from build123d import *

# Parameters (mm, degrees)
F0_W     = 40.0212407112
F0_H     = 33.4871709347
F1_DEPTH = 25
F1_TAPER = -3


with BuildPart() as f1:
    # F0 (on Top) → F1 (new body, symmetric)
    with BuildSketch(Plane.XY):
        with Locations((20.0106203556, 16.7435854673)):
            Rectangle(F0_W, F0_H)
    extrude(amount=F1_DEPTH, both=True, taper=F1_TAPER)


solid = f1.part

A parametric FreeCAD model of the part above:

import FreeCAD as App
import Part
import Sketcher
from FreeCAD import Vector
Q = App.Units.Quantity

doc = App.newDocument("Part")
body = doc.addObject("PartDesign::Body", "Body")

sketch1 = body.newObject("Sketcher::SketchObject", "Sketch")
sketch1.AttachmentSupport = (doc.getObject("XY_Plane"), [""])
sketch1.MapMode = "FlatFace"
sketch1.addGeometry([
    Part.LineSegment(Vector(0, 33, 0), Vector(0, 0, 0)),
    Part.LineSegment(Vector(0, 0, 0), Vector(40, 0, 0)),
    Part.LineSegment(Vector(40, 0, 0), Vector(40, 33, 0)),
    Part.LineSegment(Vector(40, 33, 0), Vector(0, 33, 0)),
], False)
sketch1.addConstraint([
    Sketcher.Constraint("Coincident", 0, 2, 1, 1),
    Sketcher.Constraint("Coincident", 1, 2, 2, 1),
    Sketcher.Constraint("Coincident", 2, 2, 3, 1),
    Sketcher.Constraint("Coincident", 3, 2, 0, 1),
    Sketcher.Constraint("Vertical", 0),
    Sketcher.Constraint("Horizontal", 1),
    Sketcher.Constraint("Vertical", 2),
    Sketcher.Constraint("Horizontal", 3),
    Sketcher.Constraint("Coincident", 0, 2, -1, 1),
    Sketcher.Constraint("DistanceX", 1, 1, 1, 2, Q("40.021241 mm")),
    Sketcher.Constraint("DistanceY", 0, 2, 0, 1, Q("33.487171 mm")),
])
pad1 = body.newObject("PartDesign::Pad", "Pad")
pad1.Profile = sketch1
pad1.Length = 50
pad1.Midplane = True
pad1.TaperAngle = 3

doc.recompute()
